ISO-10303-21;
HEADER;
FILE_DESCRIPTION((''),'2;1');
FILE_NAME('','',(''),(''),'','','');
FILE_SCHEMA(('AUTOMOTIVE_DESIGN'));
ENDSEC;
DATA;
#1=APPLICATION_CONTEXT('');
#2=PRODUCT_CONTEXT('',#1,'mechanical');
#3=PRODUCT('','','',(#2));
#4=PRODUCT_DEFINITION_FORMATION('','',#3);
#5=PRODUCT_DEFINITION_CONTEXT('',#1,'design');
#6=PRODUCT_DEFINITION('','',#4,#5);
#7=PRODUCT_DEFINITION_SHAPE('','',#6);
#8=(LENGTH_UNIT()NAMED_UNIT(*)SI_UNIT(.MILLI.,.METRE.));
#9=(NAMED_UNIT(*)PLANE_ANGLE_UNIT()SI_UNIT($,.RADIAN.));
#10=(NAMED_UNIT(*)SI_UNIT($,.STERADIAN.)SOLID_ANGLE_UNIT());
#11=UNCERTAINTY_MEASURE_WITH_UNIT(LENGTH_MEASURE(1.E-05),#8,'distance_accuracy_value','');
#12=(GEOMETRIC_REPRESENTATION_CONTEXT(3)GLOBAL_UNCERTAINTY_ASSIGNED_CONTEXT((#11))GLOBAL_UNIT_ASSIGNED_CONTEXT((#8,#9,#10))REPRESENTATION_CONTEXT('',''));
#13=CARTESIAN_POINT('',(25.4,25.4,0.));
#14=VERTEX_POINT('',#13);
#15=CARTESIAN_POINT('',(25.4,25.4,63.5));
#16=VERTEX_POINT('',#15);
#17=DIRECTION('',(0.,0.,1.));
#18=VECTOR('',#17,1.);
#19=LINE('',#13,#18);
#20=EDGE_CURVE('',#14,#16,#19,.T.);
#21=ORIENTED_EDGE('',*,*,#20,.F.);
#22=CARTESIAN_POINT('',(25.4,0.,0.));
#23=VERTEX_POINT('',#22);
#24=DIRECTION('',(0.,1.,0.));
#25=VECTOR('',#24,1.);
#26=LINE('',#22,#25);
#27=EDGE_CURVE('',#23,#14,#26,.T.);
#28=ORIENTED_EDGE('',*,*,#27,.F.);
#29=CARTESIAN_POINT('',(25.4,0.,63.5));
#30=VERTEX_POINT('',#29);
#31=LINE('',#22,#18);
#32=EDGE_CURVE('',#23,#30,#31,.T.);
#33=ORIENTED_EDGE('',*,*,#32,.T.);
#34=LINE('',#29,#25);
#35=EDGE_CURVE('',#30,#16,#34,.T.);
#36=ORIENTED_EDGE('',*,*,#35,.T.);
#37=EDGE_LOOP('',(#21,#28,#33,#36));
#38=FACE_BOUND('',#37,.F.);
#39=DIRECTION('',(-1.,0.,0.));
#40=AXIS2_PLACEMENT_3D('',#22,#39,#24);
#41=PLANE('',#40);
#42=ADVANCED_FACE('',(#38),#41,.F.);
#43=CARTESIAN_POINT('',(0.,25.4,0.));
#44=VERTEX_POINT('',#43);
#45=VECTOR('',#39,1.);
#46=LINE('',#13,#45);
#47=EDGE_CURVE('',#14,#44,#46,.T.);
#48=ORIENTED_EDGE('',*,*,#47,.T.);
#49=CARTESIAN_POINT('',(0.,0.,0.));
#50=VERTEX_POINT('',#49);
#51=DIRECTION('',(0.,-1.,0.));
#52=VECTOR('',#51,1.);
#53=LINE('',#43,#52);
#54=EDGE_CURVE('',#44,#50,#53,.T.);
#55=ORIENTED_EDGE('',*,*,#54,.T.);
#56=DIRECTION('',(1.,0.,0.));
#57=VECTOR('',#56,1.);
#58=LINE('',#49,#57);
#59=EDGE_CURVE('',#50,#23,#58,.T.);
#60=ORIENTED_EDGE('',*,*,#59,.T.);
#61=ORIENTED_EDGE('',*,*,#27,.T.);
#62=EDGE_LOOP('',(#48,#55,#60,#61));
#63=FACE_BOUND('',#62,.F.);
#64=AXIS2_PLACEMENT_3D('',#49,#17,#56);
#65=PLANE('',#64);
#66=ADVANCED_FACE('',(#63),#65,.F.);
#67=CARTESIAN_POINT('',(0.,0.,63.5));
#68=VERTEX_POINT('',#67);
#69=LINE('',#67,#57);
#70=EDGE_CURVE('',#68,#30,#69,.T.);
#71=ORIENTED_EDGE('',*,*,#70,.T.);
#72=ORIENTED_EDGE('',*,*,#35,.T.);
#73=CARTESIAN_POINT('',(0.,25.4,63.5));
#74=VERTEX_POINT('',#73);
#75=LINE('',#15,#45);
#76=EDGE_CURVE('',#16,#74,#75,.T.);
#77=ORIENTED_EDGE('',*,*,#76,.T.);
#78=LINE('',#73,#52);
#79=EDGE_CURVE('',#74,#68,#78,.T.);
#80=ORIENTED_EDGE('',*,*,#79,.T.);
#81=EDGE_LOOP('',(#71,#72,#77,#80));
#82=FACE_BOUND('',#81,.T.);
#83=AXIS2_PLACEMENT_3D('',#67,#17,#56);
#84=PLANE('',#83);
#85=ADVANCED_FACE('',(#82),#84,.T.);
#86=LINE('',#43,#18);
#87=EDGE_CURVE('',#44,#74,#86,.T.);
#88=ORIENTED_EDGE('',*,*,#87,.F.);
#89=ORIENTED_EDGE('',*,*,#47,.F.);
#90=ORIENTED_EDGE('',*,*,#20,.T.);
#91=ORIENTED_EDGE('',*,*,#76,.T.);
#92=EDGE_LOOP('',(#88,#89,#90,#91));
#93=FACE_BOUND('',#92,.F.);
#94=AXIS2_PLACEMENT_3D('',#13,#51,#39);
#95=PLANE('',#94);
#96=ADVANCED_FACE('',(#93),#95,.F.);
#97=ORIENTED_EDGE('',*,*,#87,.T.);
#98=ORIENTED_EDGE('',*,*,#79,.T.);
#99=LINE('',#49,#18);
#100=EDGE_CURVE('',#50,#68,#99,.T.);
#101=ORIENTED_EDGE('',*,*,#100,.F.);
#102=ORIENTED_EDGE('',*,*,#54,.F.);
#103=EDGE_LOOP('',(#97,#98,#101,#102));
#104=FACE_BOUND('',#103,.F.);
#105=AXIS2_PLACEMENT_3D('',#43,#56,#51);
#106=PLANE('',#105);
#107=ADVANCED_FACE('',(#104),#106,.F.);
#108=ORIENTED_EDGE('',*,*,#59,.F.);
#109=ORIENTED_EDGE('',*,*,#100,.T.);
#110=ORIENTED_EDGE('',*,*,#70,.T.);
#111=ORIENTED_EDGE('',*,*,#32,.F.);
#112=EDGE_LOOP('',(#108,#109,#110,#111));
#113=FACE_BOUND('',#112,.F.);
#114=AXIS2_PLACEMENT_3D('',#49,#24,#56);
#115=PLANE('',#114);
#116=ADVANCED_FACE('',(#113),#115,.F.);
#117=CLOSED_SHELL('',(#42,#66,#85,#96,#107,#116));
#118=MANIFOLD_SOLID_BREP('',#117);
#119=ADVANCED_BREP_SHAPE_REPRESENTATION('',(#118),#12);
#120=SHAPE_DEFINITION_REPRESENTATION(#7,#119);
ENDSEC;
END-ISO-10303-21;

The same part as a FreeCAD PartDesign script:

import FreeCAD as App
import Part
import Sketcher

V = App.Vector
Q = App.Units.Quantity

doc = App.newDocument("Part")
params = doc.addObject("Spreadsheet::Sheet", "Params")
for row, (alias, value) in enumerate([
    ("sketch1_width", "1 in"),
    ("pad1_length", "2.5 in"),
], start=1):
    params.set(f"A{row}", alias)
    params.set(f"B{row}", "=" + value)
    params.setAlias(f"B{row}", alias)

body = doc.addObject("PartDesign::Body", "Body")

# Sketch on XY plane
sketch1 = doc.addObject("Sketcher::SketchObject", "Sketch")
body.addObject(sketch1)
sketch1.AttachmentSupport = (doc.XY_Plane, [""])
sketch1.MapMode = "FlatFace"
sketch1.addGeometry([
    Part.LineSegment(V(0, 25, 0), V(0, 0, 0)),
    Part.LineSegment(V(0, 0, 0), V(25, 0, 0)),
    Part.LineSegment(V(25, 0, 0), V(25, 25, 0)),
    Part.LineSegment(V(25, 25, 0), V(0, 25, 0)),
], False)
sketch1.addConstraint([
    Sketcher.Constraint("Coincident", 0, 2, 1, 1),
    Sketcher.Constraint("Coincident", 1, 2, 2, 1),
    Sketcher.Constraint("Coincident", 2, 2, 3, 1),
    Sketcher.Constraint("Coincident", 3, 2, 0, 1),
    Sketcher.Constraint("Vertical", 0),
    Sketcher.Constraint("Horizontal", 1),
    Sketcher.Constraint("Vertical", 2),
    Sketcher.Constraint("Horizontal", 3),
    Sketcher.Constraint("Coincident", 0, 2, -1, 1),
    Sketcher.Constraint("Equal", 3, 0),
    Sketcher.Constraint("DistanceX", 1, 1, 1, 2, Q("1 in")),
])
sketch1.setExpression("Constraints[10]", "Params.sketch1_width")
pad1 = doc.addObject("PartDesign::Pad", "Pad")
body.addObject(pad1)
pad1.Profile = sketch1
pad1.setExpression("Length", "Params.pad1_length")

doc.recompute()
